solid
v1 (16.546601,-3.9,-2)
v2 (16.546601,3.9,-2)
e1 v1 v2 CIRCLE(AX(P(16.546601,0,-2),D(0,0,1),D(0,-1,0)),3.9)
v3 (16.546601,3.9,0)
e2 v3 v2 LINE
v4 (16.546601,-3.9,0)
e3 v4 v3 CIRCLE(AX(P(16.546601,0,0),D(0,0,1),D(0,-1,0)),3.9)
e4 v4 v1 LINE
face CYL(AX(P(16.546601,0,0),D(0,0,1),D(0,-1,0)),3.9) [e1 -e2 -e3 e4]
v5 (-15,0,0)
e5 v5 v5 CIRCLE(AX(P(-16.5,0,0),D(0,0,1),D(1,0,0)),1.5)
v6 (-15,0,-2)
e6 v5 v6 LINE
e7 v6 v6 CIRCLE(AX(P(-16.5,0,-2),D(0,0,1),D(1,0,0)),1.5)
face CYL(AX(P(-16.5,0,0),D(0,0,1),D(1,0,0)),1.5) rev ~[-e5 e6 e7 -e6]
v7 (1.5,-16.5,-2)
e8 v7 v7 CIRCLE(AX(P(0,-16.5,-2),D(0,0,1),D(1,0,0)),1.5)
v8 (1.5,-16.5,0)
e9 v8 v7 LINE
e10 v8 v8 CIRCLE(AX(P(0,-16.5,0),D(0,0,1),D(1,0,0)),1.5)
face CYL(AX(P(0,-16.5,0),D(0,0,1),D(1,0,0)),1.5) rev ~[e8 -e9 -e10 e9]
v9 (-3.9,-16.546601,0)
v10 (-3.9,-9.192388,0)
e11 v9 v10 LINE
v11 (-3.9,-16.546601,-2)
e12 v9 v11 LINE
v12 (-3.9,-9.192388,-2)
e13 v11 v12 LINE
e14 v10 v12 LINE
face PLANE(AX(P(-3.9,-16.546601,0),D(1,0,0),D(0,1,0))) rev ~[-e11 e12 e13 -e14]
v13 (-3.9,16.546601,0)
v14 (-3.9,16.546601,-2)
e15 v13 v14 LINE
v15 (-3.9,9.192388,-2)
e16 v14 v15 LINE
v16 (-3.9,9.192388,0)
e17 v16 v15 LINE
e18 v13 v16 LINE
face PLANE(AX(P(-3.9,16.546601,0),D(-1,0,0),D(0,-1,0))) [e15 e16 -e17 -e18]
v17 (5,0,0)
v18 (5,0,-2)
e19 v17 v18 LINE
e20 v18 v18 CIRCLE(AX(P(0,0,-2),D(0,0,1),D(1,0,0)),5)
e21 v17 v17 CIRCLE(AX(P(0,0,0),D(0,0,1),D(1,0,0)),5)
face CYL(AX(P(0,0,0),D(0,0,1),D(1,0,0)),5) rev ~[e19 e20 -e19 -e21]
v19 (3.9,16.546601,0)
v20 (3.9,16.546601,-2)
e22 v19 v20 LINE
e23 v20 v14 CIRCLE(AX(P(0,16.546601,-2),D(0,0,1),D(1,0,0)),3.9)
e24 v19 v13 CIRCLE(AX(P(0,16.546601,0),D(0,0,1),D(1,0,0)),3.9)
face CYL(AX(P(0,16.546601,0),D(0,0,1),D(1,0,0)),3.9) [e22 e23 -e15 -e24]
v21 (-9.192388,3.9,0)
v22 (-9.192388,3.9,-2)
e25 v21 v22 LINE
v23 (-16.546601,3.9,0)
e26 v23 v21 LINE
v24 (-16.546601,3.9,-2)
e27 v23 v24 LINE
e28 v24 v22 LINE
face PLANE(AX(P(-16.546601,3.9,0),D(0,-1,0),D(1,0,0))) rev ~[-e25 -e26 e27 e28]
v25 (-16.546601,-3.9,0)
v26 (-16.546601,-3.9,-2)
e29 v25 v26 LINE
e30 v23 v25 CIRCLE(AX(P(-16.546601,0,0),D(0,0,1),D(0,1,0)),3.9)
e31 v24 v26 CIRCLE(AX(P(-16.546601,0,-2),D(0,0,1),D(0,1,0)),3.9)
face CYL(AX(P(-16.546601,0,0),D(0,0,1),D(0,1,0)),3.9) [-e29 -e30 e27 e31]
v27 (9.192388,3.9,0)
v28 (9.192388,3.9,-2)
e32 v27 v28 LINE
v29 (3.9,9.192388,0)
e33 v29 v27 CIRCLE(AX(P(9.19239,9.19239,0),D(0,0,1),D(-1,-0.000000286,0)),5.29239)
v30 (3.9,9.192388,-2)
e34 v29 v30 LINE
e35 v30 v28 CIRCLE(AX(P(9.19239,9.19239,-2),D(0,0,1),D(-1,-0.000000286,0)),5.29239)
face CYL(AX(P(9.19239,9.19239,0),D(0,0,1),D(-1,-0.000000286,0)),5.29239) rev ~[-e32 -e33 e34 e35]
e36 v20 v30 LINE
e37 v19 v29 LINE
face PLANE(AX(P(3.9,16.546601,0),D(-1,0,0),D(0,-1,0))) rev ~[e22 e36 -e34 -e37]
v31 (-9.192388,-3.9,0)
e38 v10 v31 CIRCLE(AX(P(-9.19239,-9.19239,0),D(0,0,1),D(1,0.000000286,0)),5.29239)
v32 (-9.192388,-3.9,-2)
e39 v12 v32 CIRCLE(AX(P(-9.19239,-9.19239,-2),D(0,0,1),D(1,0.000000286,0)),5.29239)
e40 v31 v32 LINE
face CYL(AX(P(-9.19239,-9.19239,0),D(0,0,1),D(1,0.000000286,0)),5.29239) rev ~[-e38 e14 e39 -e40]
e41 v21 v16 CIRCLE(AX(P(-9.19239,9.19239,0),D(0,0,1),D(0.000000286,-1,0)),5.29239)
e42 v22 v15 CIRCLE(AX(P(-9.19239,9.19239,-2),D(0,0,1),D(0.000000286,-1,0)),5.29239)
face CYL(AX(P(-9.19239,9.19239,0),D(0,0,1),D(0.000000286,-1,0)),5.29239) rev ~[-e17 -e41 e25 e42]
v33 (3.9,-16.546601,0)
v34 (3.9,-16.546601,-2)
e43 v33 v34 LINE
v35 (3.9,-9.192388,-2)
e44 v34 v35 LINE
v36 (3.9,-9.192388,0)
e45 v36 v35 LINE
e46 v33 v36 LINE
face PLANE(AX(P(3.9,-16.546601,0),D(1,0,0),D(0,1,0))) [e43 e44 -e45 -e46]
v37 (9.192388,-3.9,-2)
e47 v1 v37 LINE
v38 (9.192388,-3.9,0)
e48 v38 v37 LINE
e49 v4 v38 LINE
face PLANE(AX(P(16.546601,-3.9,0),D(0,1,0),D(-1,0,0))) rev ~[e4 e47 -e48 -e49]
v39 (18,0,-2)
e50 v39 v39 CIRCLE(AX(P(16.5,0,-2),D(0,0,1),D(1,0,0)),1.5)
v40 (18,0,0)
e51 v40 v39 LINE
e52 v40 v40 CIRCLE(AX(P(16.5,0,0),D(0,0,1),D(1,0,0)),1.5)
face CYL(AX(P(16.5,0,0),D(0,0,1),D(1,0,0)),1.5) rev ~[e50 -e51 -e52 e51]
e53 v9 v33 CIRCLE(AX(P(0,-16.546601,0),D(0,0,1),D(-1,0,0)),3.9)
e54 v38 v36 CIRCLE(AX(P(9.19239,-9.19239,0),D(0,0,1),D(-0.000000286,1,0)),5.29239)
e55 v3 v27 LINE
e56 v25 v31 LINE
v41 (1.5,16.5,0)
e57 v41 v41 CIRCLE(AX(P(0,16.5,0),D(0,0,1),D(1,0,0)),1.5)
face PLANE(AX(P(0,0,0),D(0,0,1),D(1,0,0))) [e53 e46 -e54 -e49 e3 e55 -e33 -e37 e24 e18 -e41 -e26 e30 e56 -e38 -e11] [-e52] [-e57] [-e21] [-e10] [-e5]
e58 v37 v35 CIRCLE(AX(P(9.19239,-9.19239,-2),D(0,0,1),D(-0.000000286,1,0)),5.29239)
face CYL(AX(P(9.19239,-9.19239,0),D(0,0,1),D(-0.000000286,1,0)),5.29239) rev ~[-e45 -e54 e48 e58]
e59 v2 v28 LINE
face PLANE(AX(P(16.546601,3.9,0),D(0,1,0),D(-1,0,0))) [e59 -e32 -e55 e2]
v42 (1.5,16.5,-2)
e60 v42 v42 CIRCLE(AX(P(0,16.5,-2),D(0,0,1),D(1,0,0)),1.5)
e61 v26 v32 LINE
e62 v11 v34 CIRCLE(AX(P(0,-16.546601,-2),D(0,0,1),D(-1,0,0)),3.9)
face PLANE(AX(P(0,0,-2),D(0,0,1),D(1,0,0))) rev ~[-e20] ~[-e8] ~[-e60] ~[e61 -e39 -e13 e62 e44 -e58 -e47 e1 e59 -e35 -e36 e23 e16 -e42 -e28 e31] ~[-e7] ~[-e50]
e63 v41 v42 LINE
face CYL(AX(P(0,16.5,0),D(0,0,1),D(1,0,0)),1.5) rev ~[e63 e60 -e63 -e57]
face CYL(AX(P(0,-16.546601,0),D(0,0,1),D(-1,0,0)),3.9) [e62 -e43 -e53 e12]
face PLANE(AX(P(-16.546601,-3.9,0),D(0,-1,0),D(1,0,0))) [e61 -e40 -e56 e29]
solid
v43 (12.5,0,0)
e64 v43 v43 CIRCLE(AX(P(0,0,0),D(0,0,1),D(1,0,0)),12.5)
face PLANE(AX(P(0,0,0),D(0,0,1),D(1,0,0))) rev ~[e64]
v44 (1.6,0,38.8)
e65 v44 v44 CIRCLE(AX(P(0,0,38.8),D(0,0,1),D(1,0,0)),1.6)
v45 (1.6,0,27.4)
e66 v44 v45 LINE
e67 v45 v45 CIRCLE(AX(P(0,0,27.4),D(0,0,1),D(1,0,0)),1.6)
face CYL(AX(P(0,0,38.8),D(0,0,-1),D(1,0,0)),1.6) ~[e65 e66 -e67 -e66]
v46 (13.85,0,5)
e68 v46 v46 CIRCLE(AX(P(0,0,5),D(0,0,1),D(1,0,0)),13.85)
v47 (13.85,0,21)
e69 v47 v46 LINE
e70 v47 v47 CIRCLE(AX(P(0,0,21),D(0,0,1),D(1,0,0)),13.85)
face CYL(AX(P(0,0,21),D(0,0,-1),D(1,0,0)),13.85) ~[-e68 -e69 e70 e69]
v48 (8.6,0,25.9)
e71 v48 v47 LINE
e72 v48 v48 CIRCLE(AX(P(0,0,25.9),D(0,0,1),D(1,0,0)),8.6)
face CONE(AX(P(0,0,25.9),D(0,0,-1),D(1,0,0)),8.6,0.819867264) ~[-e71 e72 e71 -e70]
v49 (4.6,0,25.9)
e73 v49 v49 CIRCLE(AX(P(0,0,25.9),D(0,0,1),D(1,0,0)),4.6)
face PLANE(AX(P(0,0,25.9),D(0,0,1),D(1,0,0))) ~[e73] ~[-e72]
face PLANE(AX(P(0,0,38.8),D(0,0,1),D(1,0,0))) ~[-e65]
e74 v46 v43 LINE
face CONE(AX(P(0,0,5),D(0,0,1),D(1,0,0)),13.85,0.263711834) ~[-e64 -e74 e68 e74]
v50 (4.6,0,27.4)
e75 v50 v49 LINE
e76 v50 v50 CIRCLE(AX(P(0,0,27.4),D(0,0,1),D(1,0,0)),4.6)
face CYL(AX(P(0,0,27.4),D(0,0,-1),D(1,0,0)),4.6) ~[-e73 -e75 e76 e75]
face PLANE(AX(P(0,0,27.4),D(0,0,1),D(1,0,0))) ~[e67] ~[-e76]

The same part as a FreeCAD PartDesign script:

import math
import FreeCAD as App
import Part
import Sketcher
Q = App.Units.Quantity

doc = App.newDocument("Part")
body = doc.addObject("PartDesign::Body", "Body")

# Sketch on XZ plane
sketch1 = body.newObject("Sketcher::SketchObject", "Sketch")
sketch1.AttachmentSupport = (doc.getObject("XZ_Plane"), [""])
sketch1.MapMode = "FlatFace"
sketch1.addGeometry(Part.LineSegment(App.Vector(0, 38.8, 0), App.Vector(0, 0, 0)), False)
sketch1.addGeometry(Part.LineSegment(App.Vector(0, 0, 0), App.Vector(12.5, 0, 0)), False)
sketch1.addGeometry(Part.LineSegment(App.Vector(12.5, 0, 0), App.Vector(13.8, 5, 0)), False)
sketch1.addGeometry(Part.LineSegment(App.Vector(13.8, 5, 0), App.Vector(13.8, 21, 0)), False)
sketch1.addGeometry(Part.LineSegment(App.Vector(13.8, 21, 0), App.Vector(8.6, 25.9, 0)), False)
sketch1.addGeometry(Part.LineSegment(App.Vector(8.6, 25.9, 0), App.Vector(4.6, 25.9, 0)), False)
sketch1.addGeometry(Part.LineSegment(App.Vector(4.6, 25.9, 0), App.Vector(4.6, 27.4, 0)), False)
sketch1.addGeometry(Part.LineSegment(App.Vector(4.6, 27.4, 0), App.Vector(1.6, 27.4, 0)), False)
sketch1.addGeometry(Part.LineSegment(App.Vector(1.6, 27.4, 0), App.Vector(1.6, 38.8, 0)), False)
sketch1.addGeometry(Part.LineSegment(App.Vector(1.6, 38.8, 0), App.Vector(0, 38.8, 0)), False)
sketch1.addConstraint(Sketcher.Constraint("Coincident", 0, 2, 1, 1))
sketch1.addConstraint(Sketcher.Constraint("Coincident", 1, 2, 2, 1))
sketch1.addConstraint(Sketcher.Constraint("Coincident", 2, 2, 3, 1))
sketch1.addConstraint(Sketcher.Constraint("Coincident", 3, 2, 4, 1))
sketch1.addConstraint(Sketcher.Constraint("Coincident", 4, 2, 5, 1))
sketch1.addConstraint(Sketcher.Constraint("Coincident", 5, 2, 6, 1))
sketch1.addConstraint(Sketcher.Constraint("Coincident", 6, 2, 7, 1))
sketch1.addConstraint(Sketcher.Constraint("Coincident", 7, 2, 8, 1))
sketch1.addConstraint(Sketcher.Constraint("Coincident", 8, 2, 9, 1))
sketch1.addConstraint(Sketcher.Constraint("Coincident", 9, 2, 0, 1))
sketch1.addConstraint(Sketcher.Constraint("Vertical", 0))
sketch1.addConstraint(Sketcher.Constraint("Horizontal", 1))
sketch1.addConstraint(Sketcher.Constraint("Vertical", 3))
sketch1.addConstraint(Sketcher.Constraint("Horizontal", 5))
sketch1.addConstraint(Sketcher.Constraint("Vertical", 6))
sketch1.addConstraint(Sketcher.Constraint("Horizontal", 7))
sketch1.addConstraint(Sketcher.Constraint("Vertical", 8))
sketch1.addConstraint(Sketcher.Constraint("Horizontal", 9))
sketch1.addConstraint(Sketcher.Constraint("Coincident", 0, 2, -1, 1))
sketch1.addConstraint(Sketcher.Constraint("DistanceX", 5, 2, 5, 1, Q("4 mm")))
sketch1.addConstraint(Sketcher.Constraint("DistanceX", 7, 2, 7, 1, Q("3 mm")))
sketch1.addConstraint(Sketcher.Constraint("DistanceY", 3, 1, 3, 2, Q("16 mm")))
sketch1.addConstraint(Sketcher.Constraint("DistanceX", 1, 1, 1, 2, Q("12.5 mm")))
sketch1.addConstraint(Sketcher.Constraint("DistanceX", 9, 2, 9, 1, Q("1.6 mm")))
sketch1.addConstraint(Sketcher.Constraint("DistanceY", 0, 2, 0, 1, Q("38.8 mm")))
sketch1.addConstraint(Sketcher.Constraint("DistanceY", 6, 1, 6, 2, Q("1.5 mm")))
sketch1.addConstraint(Sketcher.Constraint("DistanceY", 8, 1, 8, 2, Q("11.4 mm")))
sketch1.addConstraint(Sketcher.Constraint("DistanceY", -1, 1, 2, 2, Q("5 mm")))
sketch1.addConstraint(Sketcher.Constraint("DistanceX", -1, 1, 2, 2, Q("13.85 mm")))
revolution = body.newObject("PartDesign::Revolution", "Revolution")
revolution.Profile = sketch1
revolution.ReferenceAxis = (sketch1, ["V_Axis"])
revolution.Angle = 360
body2 = doc.addObject("PartDesign::Body", "Body001")

# Sketch on XY plane
sketch2 = body2.newObject("Sketcher::SketchObject", "Sketch001")
sketch2.AttachmentSupport = (doc.getObject("XY_Plane001"), [""])
sketch2.MapMode = "FlatFace"
sketch2.addGeometry(Part.ArcOfCircle(Part.Circle(App.Vector(-16.5, 0, 0), App.Vector(0, 0, 1), 3.9), math.radians(90), math.radians(270)), False)
sketch2.addGeometry(Part.LineSegment(App.Vector(-16.5, -3.9, 0), App.Vector(-9.2, -3.9, 0)), False)
sketch2.addGeometry(Part.ArcOfCircle(Part.Circle(App.Vector(-9.2, -9.2, 0), App.Vector(0, 0, 1), 5.3), math.radians(0), math.radians(90)), False)
sketch2.addGeometry(Part.LineSegment(App.Vector(-3.9, -9.2, 0), App.Vector(-3.9, -16.5, 0)), False)
sketch2.addGeometry(Part.ArcOfCircle(Part.Circle(App.Vector(0, -16.5, 0), App.Vector(0, 0, 1), 3.9), math.radians(180), math.radians(360)), False)
sketch2.addGeometry(Part.LineSegment(App.Vector(3.9, -16.5, 0), App.Vector(3.9, -9.2, 0)), False)
sketch2.addGeometry(Part.ArcOfCircle(Part.Circle(App.Vector(9.2, -9.2, 0), App.Vector(0, 0, 1), 5.3), math.radians(90), math.radians(180)), False)
sketch2.addGeometry(Part.LineSegment(App.Vector(9.2, -3.9, 0), App.Vector(16.5, -3.9, 0)), False)
sketch2.addGeometry(Part.ArcOfCircle(Part.Circle(App.Vector(16.5, 0, 0), App.Vector(0, 0, 1), 3.9), math.radians(-90), math.radians(90)), False)
sketch2.addGeometry(Part.LineSegment(App.Vector(16.5, 3.9, 0), App.Vector(9.2, 3.9, 0)), False)
sketch2.addGeometry(Part.ArcOfCircle(Part.Circle(App.Vector(9.2, 9.2, 0), App.Vector(0, 0, 1), 5.3), math.radians(-180), math.radians(-90)), False)
sketch2.addGeometry(Part.LineSegment(App.Vector(3.9, 9.2, 0), App.Vector(3.9, 16.5, 0)), False)
sketch2.addGeometry(Part.ArcOfCircle(Part.Circle(App.Vector(0, 16.5, 0), App.Vector(0, 0, 1), 3.9), math.radians(0), math.radians(180)), False)
sketch2.addGeometry(Part.LineSegment(App.Vector(-3.9, 16.5, 0), App.Vector(-3.9, 9.2, 0)), False)
sketch2.addGeometry(Part.ArcOfCircle(Part.Circle(App.Vector(-9.2, 9.2, 0), App.Vector(0, 0, 1), 5.3), math.radians(-90), math.radians(0)), False)
sketch2.addGeometry(Part.LineSegment(App.Vector(-9.2, 3.9, 0), App.Vector(-16.5, 3.9, 0)), False)
sketch2.addGeometry(Part.Circle(App.Vector(0, -16.5, 0), App.Vector(0, 0, 1), 1.5), False)
sketch2.addGeometry(Part.Circle(App.Vector(-16.5, 0, 0), App.Vector(0, 0, 1), 1.5), False)
sketch2.addGeometry(Part.Circle(App.Vector(0, 0, 0), App.Vector(0, 0, 1), 5), False)
sketch2.addGeometry(Part.Circle(App.Vector(16.5, 0, 0), App.Vector(0, 0, 1), 1.5), False)
sketch2.addGeometry(Part.Circle(App.Vector(0, 16.5, 0), App.Vector(0, 0, 1), 1.5), False)
sketch2.addConstraint(Sketcher.Constraint("Tangent", 0, 2, 1, 1))
sketch2.addConstraint(Sketcher.Constraint("Tangent", 1, 2, 2, 2))
sketch2.addConstraint(Sketcher.Constraint("Tangent", 2, 1, 3, 1))
sketch2.addConstraint(Sketcher.Constraint("Tangent", 3, 2, 4, 1))
sketch2.addConstraint(Sketcher.Constraint("Tangent", 4, 2, 5, 1))
sketch2.addConstraint(Sketcher.Constraint("Tangent", 5, 2, 6, 2))
sketch2.addConstraint(Sketcher.Constraint("Tangent", 6, 1, 7, 1))
sketch2.addConstraint(Sketcher.Constraint("Tangent", 7, 2, 8, 1))
sketch2.addConstraint(Sketcher.Constraint("Tangent", 8, 2, 9, 1))
sketch2.addConstraint(Sketcher.Constraint("Tangent", 9, 2, 10, 2))
sketch2.addConstraint(Sketcher.Constraint("Tangent", 10, 1, 11, 1))
sketch2.addConstraint(Sketcher.Constraint("Tangent", 11, 2, 12, 1))
sketch2.addConstraint(Sketcher.Constraint("Tangent", 12, 2, 13, 1))
sketch2.addConstraint(Sketcher.Constraint("Tangent", 13, 2, 14, 2))
sketch2.addConstraint(Sketcher.Constraint("Tangent", 14, 1, 15, 1))
sketch2.addConstraint(Sketcher.Constraint("Tangent", 15, 2, 0, 1))
sketch2.addConstraint(Sketcher.Constraint("Horizontal", 1))
sketch2.addConstraint(Sketcher.Constraint("Vertical", 3))
sketch2.addConstraint(Sketcher.Constraint("Vertical", 5))
sketch2.addConstraint(Sketcher.Constraint("Horizontal", 7))
sketch2.addConstraint(Sketcher.Constraint("Horizontal", 9))
sketch2.addConstraint(Sketcher.Constraint("Vertical", 11))
sketch2.addConstraint(Sketcher.Constraint("Vertical", 13))
sketch2.addConstraint(Sketcher.Constraint("Horizontal", 15))
sketch2.addConstraint(Sketcher.Constraint("Coincident", 18, 3, -1, 1))
sketch2.addConstraint(Sketcher.Constraint("Equal", 0, 4))
sketch2.addConstraint(Sketcher.Constraint("Equal", 2, 6))
sketch2.addConstraint(Sketcher.Constraint("Equal", 4, 8))
sketch2.addConstraint(Sketcher.Constraint("Equal", 6, 10))
sketch2.addConstraint(Sketcher.Constraint("Equal", 8, 12))
sketch2.addConstraint(Sketcher.Constraint("Equal", 10, 14))
sketch2.addConstraint(Sketcher.Constraint("Equal", 16, 17))
sketch2.addConstraint(Sketcher.Constraint("Equal", 17, 19))
sketch2.addConstraint(Sketcher.Constraint("Equal", 19, 20))
sketch2.addConstraint(Sketcher.Constraint("Symmetric", 0, 3, 8, 3, -1, 1))
sketch2.addConstraint(Sketcher.Constraint("Symmetric", 4, 3, 12, 3, -1, 1))
sketch2.addConstraint(Sketcher.Constraint("Symmetric", 17, 3, 19, 3, -1, 1))
sketch2.addConstraint(Sketcher.Constraint("Symmetric", 16, 3, 20, 3, -1, 1))
sketch2.addConstraint(Sketcher.Constraint("Symmetric", 2, 3, 6, 3, -2))
sketch2.addConstraint(Sketcher.Constraint("PointOnObject", 16, 3, -2))
sketch2.addConstraint(Sketcher.Constraint("PointOnObject", 17, 3, -1))
sketch2.addConstraint(Sketcher.Constraint("Equal", 15, 3))
sketch2.addConstraint(Sketcher.Constraint("Diameter", 16, Q("3 mm")))
sketch2.addConstraint(Sketcher.Constraint("Diameter", 18, Q("10 mm")))
sketch2.addConstraint(Sketcher.Constraint("Radius", 0, Q("3.9 mm")))
sketch2.addConstraint(Sketcher.Constraint("DistanceY", 16, 3, -1, 1, Q("16.5 mm")))
sketch2.addConstraint(Sketcher.Constraint("DistanceX", 17, 3, -1, 1, Q("16.5 mm")))
sketch2.addConstraint(Sketcher.Constraint("Radius", 2, Q("5.29239 mm")))
sketch2.addConstraint(Sketcher.Constraint("DistanceX", 0, 3, -1, 1, Q("16.546601 mm")))
pad1 = body2.newObject("PartDesign::Pad", "Pad")
pad1.Profile = sketch2
pad1.Length = 2
pad1.Reversed = True

doc.recompute()
